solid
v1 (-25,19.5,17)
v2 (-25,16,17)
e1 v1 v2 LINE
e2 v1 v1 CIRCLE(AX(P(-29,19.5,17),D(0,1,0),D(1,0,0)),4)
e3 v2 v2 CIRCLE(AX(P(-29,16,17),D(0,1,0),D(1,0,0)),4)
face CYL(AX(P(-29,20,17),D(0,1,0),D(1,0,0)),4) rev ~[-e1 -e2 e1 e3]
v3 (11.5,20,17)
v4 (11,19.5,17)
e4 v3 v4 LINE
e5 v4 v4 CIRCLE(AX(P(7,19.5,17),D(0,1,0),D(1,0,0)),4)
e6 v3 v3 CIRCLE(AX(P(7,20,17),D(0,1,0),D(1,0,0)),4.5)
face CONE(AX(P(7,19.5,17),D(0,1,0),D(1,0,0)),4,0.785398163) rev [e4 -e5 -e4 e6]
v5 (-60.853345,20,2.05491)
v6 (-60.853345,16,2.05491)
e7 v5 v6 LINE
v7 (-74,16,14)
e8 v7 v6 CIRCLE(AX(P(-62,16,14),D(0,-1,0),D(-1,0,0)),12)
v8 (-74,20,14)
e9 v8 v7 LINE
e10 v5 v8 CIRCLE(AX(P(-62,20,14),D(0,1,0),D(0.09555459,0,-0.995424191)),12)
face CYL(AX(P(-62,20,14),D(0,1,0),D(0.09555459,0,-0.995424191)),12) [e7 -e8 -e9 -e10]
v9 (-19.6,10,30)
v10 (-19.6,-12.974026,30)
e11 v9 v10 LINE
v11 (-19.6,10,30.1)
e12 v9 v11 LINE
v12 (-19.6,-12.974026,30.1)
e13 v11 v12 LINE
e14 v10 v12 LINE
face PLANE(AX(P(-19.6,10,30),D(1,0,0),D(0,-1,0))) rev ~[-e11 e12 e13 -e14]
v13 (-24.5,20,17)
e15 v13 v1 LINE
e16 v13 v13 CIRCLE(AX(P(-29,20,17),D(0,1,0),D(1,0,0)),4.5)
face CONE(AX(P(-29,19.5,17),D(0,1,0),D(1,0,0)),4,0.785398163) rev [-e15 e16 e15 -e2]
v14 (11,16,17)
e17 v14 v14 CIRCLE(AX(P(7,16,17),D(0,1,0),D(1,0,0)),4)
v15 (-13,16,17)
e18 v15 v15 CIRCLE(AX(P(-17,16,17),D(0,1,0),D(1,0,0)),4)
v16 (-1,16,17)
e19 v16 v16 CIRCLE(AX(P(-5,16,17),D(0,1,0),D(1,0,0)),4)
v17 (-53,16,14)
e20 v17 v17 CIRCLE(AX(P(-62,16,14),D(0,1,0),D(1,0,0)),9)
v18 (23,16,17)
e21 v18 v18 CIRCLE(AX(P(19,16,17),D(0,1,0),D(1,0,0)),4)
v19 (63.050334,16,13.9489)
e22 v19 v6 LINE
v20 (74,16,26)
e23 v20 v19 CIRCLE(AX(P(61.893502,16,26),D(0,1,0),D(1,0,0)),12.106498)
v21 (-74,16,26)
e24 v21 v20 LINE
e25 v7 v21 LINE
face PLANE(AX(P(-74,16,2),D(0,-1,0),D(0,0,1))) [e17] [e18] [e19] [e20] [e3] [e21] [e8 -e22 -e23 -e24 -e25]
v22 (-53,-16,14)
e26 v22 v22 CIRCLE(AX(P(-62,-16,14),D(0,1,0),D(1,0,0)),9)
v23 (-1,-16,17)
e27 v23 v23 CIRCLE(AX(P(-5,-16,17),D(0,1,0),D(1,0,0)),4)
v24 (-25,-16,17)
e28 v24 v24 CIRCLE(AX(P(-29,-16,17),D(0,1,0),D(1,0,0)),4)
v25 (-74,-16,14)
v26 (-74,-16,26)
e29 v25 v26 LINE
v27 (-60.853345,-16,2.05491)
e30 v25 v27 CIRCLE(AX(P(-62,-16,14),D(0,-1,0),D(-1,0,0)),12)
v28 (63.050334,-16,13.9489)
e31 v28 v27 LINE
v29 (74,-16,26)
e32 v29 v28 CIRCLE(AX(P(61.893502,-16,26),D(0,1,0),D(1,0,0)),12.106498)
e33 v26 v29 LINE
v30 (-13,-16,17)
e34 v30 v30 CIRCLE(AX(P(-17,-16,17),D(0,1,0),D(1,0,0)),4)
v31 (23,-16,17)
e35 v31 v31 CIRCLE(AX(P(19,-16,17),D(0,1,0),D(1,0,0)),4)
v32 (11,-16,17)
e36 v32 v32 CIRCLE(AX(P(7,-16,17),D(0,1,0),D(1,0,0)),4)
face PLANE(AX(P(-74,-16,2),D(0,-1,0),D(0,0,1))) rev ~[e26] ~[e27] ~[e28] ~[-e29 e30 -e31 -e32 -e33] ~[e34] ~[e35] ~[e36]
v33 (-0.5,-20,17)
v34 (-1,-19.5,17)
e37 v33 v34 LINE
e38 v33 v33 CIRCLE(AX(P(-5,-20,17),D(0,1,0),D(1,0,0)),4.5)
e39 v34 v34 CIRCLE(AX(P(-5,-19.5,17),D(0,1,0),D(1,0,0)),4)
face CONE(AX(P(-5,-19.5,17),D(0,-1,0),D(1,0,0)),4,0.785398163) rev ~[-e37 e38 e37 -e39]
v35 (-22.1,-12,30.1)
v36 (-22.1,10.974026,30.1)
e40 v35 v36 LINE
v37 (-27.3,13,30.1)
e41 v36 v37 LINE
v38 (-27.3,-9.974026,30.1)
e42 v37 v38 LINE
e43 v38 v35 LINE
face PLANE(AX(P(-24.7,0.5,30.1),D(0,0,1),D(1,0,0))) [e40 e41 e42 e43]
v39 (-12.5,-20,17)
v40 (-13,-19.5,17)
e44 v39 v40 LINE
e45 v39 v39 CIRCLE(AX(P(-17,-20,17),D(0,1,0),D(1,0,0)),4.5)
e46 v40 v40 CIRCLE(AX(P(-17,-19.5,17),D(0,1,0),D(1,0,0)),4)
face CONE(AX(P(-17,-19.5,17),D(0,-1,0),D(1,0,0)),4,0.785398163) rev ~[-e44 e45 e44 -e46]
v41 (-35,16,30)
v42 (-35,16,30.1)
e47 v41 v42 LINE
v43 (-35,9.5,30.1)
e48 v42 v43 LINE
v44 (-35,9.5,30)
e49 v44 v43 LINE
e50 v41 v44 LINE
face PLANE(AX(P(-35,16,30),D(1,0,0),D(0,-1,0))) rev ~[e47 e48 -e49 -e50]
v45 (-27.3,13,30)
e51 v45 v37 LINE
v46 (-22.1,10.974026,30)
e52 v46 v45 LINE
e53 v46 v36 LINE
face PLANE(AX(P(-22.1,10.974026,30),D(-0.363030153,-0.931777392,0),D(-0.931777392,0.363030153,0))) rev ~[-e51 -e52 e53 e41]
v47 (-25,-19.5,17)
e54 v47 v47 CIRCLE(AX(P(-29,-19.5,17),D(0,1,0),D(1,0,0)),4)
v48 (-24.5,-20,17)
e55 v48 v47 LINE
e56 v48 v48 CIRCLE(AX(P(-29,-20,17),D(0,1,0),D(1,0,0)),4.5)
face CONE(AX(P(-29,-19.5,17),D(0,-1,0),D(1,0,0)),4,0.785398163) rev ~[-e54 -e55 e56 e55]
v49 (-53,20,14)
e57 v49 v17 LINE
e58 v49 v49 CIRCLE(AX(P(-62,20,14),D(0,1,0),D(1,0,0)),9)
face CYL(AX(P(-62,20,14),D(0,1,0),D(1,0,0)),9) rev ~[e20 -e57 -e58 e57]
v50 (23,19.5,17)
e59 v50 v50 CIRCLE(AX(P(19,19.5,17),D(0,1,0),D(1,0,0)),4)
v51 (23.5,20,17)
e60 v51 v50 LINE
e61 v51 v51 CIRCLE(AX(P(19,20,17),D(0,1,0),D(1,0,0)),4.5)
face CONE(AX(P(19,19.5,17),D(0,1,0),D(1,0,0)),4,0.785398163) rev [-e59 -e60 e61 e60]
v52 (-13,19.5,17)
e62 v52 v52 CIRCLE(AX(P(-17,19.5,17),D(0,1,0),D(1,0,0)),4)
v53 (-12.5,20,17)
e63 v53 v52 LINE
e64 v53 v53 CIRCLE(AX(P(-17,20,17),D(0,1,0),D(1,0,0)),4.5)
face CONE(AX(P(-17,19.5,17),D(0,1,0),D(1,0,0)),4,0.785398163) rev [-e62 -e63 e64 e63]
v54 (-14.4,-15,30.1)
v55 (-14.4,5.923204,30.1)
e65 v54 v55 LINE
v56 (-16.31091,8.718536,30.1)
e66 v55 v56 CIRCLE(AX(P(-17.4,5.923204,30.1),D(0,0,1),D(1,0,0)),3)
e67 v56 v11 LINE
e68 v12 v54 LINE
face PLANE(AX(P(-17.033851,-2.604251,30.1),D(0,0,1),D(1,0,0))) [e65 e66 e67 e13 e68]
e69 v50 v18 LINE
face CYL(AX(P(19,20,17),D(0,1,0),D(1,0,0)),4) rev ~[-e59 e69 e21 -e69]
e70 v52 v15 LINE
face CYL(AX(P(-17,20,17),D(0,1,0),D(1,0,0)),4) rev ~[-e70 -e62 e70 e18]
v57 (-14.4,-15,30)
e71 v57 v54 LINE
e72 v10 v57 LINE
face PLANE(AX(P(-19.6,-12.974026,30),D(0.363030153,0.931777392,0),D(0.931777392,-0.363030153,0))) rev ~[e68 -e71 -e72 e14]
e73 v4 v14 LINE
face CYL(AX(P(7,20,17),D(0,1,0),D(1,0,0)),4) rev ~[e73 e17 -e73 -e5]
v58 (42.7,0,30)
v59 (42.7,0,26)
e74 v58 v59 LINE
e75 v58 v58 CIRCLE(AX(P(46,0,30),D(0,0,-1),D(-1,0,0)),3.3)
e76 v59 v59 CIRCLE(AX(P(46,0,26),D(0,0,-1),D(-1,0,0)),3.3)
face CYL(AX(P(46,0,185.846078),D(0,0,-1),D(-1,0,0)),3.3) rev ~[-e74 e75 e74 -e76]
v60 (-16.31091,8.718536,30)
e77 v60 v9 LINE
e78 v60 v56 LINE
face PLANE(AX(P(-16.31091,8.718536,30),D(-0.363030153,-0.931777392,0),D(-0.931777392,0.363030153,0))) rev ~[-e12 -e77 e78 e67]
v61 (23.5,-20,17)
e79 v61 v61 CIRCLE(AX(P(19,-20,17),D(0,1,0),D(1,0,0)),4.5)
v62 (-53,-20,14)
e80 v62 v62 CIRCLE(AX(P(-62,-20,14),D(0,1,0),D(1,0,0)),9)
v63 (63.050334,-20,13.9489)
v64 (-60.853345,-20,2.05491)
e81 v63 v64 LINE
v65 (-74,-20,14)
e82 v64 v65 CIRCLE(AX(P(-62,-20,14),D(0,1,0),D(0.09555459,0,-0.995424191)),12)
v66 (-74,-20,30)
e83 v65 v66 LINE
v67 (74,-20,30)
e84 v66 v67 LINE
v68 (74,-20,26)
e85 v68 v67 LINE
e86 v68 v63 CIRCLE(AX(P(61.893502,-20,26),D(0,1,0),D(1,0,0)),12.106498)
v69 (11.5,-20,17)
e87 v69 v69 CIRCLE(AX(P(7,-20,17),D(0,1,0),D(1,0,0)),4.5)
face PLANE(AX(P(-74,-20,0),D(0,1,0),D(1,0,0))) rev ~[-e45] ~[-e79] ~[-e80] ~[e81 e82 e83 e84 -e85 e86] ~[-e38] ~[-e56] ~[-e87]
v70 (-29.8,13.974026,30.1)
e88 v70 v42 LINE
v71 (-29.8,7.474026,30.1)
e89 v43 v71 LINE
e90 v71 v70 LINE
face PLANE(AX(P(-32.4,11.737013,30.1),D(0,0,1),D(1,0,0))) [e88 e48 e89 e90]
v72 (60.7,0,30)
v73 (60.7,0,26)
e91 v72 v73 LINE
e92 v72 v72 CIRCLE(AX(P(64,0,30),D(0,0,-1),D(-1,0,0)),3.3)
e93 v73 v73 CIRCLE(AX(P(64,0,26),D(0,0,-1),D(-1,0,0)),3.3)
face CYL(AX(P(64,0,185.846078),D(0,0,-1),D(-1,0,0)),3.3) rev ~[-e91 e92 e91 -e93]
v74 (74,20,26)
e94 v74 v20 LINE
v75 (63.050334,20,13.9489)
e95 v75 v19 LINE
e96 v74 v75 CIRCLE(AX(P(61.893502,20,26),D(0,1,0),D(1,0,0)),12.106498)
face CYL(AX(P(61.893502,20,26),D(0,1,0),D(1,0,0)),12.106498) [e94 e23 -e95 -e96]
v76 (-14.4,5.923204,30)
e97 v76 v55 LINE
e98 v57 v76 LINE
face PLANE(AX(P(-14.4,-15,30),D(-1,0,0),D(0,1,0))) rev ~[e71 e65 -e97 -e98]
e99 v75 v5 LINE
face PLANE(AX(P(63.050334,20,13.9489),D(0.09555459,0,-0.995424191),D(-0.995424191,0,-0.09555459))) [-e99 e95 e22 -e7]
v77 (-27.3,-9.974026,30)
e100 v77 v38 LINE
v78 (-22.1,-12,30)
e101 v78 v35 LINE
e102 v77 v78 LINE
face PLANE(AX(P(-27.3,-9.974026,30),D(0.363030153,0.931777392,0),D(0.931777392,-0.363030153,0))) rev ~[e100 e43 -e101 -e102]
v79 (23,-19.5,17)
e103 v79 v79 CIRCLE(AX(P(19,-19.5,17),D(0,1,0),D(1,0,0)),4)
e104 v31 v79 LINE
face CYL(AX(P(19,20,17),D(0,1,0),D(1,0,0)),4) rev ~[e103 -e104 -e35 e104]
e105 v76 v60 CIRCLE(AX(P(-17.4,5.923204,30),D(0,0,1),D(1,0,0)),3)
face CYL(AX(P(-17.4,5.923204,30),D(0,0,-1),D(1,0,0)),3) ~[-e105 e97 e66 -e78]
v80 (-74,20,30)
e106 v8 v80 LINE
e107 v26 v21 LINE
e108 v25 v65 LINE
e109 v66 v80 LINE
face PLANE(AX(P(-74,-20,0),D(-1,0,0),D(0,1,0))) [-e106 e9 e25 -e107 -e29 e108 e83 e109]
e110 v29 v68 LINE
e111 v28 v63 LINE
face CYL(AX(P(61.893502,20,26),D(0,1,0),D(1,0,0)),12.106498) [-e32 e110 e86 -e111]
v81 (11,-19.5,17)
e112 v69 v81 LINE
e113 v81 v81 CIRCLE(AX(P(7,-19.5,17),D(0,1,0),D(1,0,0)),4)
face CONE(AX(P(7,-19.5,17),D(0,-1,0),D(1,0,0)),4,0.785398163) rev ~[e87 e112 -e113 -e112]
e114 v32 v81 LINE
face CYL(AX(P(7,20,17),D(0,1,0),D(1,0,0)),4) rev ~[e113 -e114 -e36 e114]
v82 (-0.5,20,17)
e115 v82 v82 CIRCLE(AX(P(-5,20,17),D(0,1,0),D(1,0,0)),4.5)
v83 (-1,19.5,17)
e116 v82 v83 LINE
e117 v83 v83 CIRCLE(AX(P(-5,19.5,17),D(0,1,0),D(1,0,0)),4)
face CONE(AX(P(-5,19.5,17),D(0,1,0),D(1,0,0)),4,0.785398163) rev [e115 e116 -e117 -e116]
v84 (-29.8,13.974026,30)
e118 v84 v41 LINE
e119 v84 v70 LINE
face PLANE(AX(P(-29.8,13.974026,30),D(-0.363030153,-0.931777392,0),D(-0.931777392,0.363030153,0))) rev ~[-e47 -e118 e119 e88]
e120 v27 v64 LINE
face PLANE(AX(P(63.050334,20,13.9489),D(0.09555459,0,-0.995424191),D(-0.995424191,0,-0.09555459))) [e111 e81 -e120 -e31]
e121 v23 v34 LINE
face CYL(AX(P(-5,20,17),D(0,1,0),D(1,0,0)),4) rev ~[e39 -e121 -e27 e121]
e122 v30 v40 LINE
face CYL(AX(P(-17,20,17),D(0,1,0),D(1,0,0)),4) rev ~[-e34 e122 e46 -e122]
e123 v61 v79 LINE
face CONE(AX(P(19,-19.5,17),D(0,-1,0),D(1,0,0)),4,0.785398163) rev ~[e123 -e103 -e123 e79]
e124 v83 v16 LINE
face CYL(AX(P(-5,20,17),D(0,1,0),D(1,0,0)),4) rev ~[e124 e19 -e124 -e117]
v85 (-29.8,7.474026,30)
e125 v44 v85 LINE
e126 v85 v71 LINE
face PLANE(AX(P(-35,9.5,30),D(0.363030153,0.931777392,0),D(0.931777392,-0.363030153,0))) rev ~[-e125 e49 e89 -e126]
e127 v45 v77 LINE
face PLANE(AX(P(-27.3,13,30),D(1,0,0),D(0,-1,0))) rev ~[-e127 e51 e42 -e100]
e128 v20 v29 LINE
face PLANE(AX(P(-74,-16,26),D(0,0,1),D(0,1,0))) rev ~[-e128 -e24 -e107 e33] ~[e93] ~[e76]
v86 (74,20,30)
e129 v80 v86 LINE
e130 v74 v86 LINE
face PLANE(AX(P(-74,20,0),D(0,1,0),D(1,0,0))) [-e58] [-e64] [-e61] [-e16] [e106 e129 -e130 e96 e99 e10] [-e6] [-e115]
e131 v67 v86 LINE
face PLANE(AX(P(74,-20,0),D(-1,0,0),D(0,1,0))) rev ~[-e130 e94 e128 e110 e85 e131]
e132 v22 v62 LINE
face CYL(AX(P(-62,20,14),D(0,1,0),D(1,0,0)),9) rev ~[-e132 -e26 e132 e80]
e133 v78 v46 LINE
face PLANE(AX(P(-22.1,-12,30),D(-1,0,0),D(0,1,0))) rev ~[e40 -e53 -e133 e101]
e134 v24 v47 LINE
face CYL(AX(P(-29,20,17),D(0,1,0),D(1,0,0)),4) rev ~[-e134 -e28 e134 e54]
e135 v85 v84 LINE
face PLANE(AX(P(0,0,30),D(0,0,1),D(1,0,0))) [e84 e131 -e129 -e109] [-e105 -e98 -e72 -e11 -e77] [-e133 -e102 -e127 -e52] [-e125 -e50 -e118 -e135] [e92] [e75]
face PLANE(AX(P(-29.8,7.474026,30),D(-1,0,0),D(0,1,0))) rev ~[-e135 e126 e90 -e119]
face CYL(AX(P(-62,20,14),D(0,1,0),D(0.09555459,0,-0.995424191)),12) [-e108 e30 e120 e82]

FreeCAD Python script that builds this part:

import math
import FreeCAD as App
import Part
import Sketcher

V = App.Vector
Q = App.Units.Quantity


def edges_at(feature, points):
    """Names of the edges that pass closest to the given points."""
    edges = feature.Shape.Edges
    near = lambda p: min(range(len(edges)), key=lambda i: edges[i].distToShape(Part.Vertex(*p))[0])
    return sorted({f"Edge{near(p) + 1}" for p in points})


def add_polygon(sketch, points):
    """Adds a closed chain of lines whose ends are joined by coincident constraints."""
    first, n = sketch.GeometryCount, len(points)
    for a, b in zip(points, points[1:] + points[:1]):
        sketch.addGeometry(Part.LineSegment(App.Vector(*a, 0), App.Vector(*b, 0)), False)
    for i in range(n):
        sketch.addConstraint(Sketcher.Constraint("Coincident", first + i, 2, first + (i + 1) % n, 1))

doc = App.newDocument("Part")
body = doc.addObject("PartDesign::Body", "Body")

sketch1 = body.newObject("Sketcher::SketchObject", "Sketch")
sketch1.AttachmentSupport = (doc.getObject("XY_Plane"), [""])
sketch1.MapMode = "FlatFace"
add_polygon(sketch1, [(-74, 20), (-74, -20), (74, -20), (74, 20)])
sketch1.addConstraint(Sketcher.Constraint("Vertical", 0))
sketch1.addConstraint(Sketcher.Constraint("Horizontal", 1))
sketch1.addConstraint(Sketcher.Constraint("Vertical", 2))
sketch1.addConstraint(Sketcher.Constraint("Horizontal", 3))
sketch1.addConstraint(Sketcher.Constraint("Symmetric", 0, 2, 2, 2, -1, 1))
sketch1.addConstraint(Sketcher.Constraint("DistanceX", 1, 1, 1, 2, Q("148 mm")))
sketch1.addConstraint(Sketcher.Constraint("DistanceY", 0, 2, 0, 1, Q("40 mm")))
pad1 = body.newObject("PartDesign::Pad", "Pad")
pad1.Profile = sketch1
pad1.Length = 30

sketch2 = body.newObject("Sketcher::SketchObject", "Sketch001")
sketch2.AttachmentSupport = (doc.getObject("XZ_Plane"), [""])
sketch2.MapMode = "FlatFace"
sketch2.AttachmentOffset = App.Placement(V(0, 0, -20), App.Rotation())
add_polygon(sketch2, [(-90.6, -16.6), (-90.6, 46.6), (90.6, 46.6), (90.6, -16.6)])
sketch2.addGeometry(Part.LineSegment(V(-74, 30, 0), V(-74, 14, 0)), False)
sketch2.addGeometry(Part.ArcOfCircle(Part.Circle(V(-62, 14, 0), V(0, 0, 1), 12), math.radians(180), math.radians(275)), False)
sketch2.addGeometry(Part.LineSegment(V(-60.9, 2.1, 0), V(63.1, 13.9, 0)), False)
sketch2.addGeometry(Part.ArcOfCircle(Part.Circle(V(61.9, 26, 0), V(0, 0, 1), 12.1), math.radians(-85), math.radians(0)), False)
sketch2.addGeometry(Part.LineSegment(V(74, 26, 0), V(74, 30, 0)), False)
sketch2.addGeometry(Part.LineSegment(V(74, 30, 0), V(-74, 30, 0)), False)
sketch2.addConstraint(Sketcher.Constraint("Tangent", 4, 2, 5, 1))
sketch2.addConstraint(Sketcher.Constraint("Tangent", 5, 2, 6, 1))
sketch2.addConstraint(Sketcher.Constraint("Tangent", 6, 2, 7, 1))
sketch2.addConstraint(Sketcher.Constraint("Tangent", 7, 2, 8, 1))
sketch2.addConstraint(Sketcher.Constraint("Coincident", 8, 2, 9, 1))
sketch2.addConstraint(Sketcher.Constraint("Coincident", 9, 2, 4, 1))
sketch2.addConstraint(Sketcher.Constraint("Vertical", 0))
sketch2.addConstraint(Sketcher.Constraint("Horizontal", 1))
sketch2.addConstraint(Sketcher.Constraint("Vertical", 2))
sketch2.addConstraint(Sketcher.Constraint("Horizontal", 3))
sketch2.addConstraint(Sketcher.Constraint("Vertical", 4))
sketch2.addConstraint(Sketcher.Constraint("Vertical", 8))
sketch2.addConstraint(Sketcher.Constraint("Horizontal", 9))
sketch2.addConstraint(Sketcher.Constraint("Radius", 5, Q("12 mm")))
sketch2.addConstraint(Sketcher.Constraint("DistanceX", 9, 2, 9, 1, Q("148 mm")))
sketch2.addConstraint(Sketcher.Constraint("DistanceY", 4, 2, 4, 1, Q("16 mm")))
sketch2.addConstraint(Sketcher.Constraint("DistanceY", 8, 1, 8, 2, Q("4 mm")))
sketch2.addConstraint(Sketcher.Constraint("DistanceX", 5, 3, -1, 1, Q("62 mm")))
sketch2.addConstraint(Sketcher.Constraint("DistanceY", -1, 1, 5, 3, Q("14 mm")))
sketch2.addConstraint(Sketcher.Constraint("DistanceX", 1, 1, 1, 2, Q("181.244 mm")))
sketch2.addConstraint(Sketcher.Constraint("DistanceY", 0, 1, 0, 2, Q("63.244 mm")))
sketch2.addConstraint(Sketcher.Constraint("DistanceX", 0, 2, -1, 1, Q("90.622 mm")))
sketch2.addConstraint(Sketcher.Constraint("DistanceY", -1, 1, 0, 2, Q("46.622 mm")))
sketch2.addConstraint(Sketcher.Constraint("Radius", 7, Q("12.106498 mm")))
pocket1 = body.newObject("PartDesign::Pocket", "Pocket")
pocket1.Profile = sketch2
pocket1.Type = "ThroughAll"
pocket1.Reversed = True

sketch3 = body.newObject("Sketcher::SketchObject", "Sketch002")
sketch3.AttachmentSupport = (doc.getObject("YZ_Plane"), [""])
sketch3.MapMode = "FlatFace"
sketch3.AttachmentOffset = App.Placement(V(0, 0, -74), App.Rotation())
add_polygon(sketch3, [(16, 2), (-16, 2), (-16, 26), (16, 26)])
sketch3.addConstraint(Sketcher.Constraint("Horizontal", 0))
sketch3.addConstraint(Sketcher.Constraint("Vertical", 1))
sketch3.addConstraint(Sketcher.Constraint("Horizontal", 2))
sketch3.addConstraint(Sketcher.Constraint("Vertical", 3))
sketch3.addConstraint(Sketcher.Constraint("DistanceX", 0, 2, 0, 1, Q("32 mm")))
sketch3.addConstraint(Sketcher.Constraint("DistanceY", 1, 1, 1, 2, Q("24 mm")))
sketch3.addConstraint(Sketcher.Constraint("DistanceX", 0, 2, -1, 1, Q("16 mm")))
sketch3.addConstraint(Sketcher.Constraint("DistanceY", -1, 1, 0, 2, Q("2 mm")))
pocket2 = body.newObject("PartDesign::Pocket", "Pocket001")
pocket2.Profile = sketch3
pocket2.Type = "ThroughAll"
pocket2.Reversed = True

sketch4 = body.newObject("Sketcher::SketchObject", "Sketch003")
sketch4.AttachmentSupport = (doc.getObject("XZ_Plane"), [""])
sketch4.MapMode = "FlatFace"
sketch4.AttachmentOffset = App.Placement(V(0, 0, -20), App.Rotation())
sketch4.addGeometry(Part.Circle(V(-62, 14, 0), V(0, 0, 1), 9), False)
sketch4.addGeometry(Part.Circle(V(-29, 17, 0), V(0, 0, 1), 4), False)
sketch4.addGeometry(Part.Circle(V(-17, 17, 0), V(0, 0, 1), 4), False)
sketch4.addGeometry(Part.Circle(V(-5, 17, 0), V(0, 0, 1), 4), False)
sketch4.addGeometry(Part.Circle(V(7, 17, 0), V(0, 0, 1), 4), False)
sketch4.addGeometry(Part.Circle(V(19, 17, 0), V(0, 0, 1), 4), False)
sketch4.addConstraint(Sketcher.Constraint("Equal", 1, 2))
sketch4.addConstraint(Sketcher.Constraint("Equal", 2, 3))
sketch4.addConstraint(Sketcher.Constraint("Equal", 3, 4))
sketch4.addConstraint(Sketcher.Constraint("Equal", 4, 5))
sketch4.addConstraint(Sketcher.Constraint("Horizontal", 1, 3, 2, 3))
sketch4.addConstraint(Sketcher.Constraint("Horizontal", 2, 3, 3, 3))
sketch4.addConstraint(Sketcher.Constraint("Horizontal", 3, 3, 4, 3))
sketch4.addConstraint(Sketcher.Constraint("Horizontal", 4, 3, 5, 3))
sketch4.addConstraint(Sketcher.Constraint("Diameter", 0, Q("18 mm")))
sketch4.addConstraint(Sketcher.Constraint("Diameter", 1, Q("8 mm")))
sketch4.addConstraint(Sketcher.Constraint("DistanceX", 0, 3, -1, 1, Q("62 mm")))
sketch4.addConstraint(Sketcher.Constraint("DistanceY", -1, 1, 0, 3, Q("14 mm")))
sketch4.addConstraint(Sketcher.Constraint("DistanceX", 1, 3, -1, 1, Q("29 mm")))
sketch4.addConstraint(Sketcher.Constraint("DistanceY", -1, 1, 1, 3, Q("17 mm")))
sketch4.addConstraint(Sketcher.Constraint("DistanceX", 2, 3, -1, 1, Q("17 mm")))
sketch4.addConstraint(Sketcher.Constraint("DistanceX", 3, 3, -1, 1, Q("5 mm")))
sketch4.addConstraint(Sketcher.Constraint("DistanceX", -1, 1, 4, 3, Q("7 mm")))
sketch4.addConstraint(Sketcher.Constraint("DistanceX", -1, 1, 5, 3, Q("19 mm")))
pocket3 = body.newObject("PartDesign::Pocket", "Pocket002")
pocket3.Profile = sketch4
pocket3.Type = "ThroughAll"
pocket3.Reversed = True
doc.recompute()

chamfer = body.newObject("PartDesign::Chamfer", "Chamfer")
chamfer.Base = (pocket3, edges_at(pocket3, [
    (3, 20, 17),
    (15, -20, 17),
    (15, 20, 17),
    (-33, -20, 17),
    (-33, 20, 17),
    (-21, -20, 17),
    (-21, 20, 17),
    (-9, -20, 17),
    (-9, 20, 17),
    (3, -20, 17),
]))
chamfer.Size = 0.5

sketch5 = body.newObject("Sketcher::SketchObject", "Sketch004")
sketch5.AttachmentSupport = (doc.getObject("XY_Plane"), [""])
sketch5.MapMode = "FlatFace"
sketch5.AttachmentOffset = App.Placement(V(0, 0, 30), App.Rotation())
sketch5.addGeometry(Part.Circle(V(46, 0, 0), V(0, 0, 1), 3.3), False)
sketch5.addGeometry(Part.Circle(V(64, 0, 0), V(0, 0, 1), 3.3), False)
sketch5.addConstraint(Sketcher.Constraint("Equal", 0, 1))
sketch5.addConstraint(Sketcher.Constraint("PointOnObject", 0, 3, -1))
sketch5.addConstraint(Sketcher.Constraint("PointOnObject", 1, 3, -1))
sketch5.addConstraint(Sketcher.Constraint("Diameter", 0, Q("6.6 mm")))
sketch5.addConstraint(Sketcher.Constraint("DistanceX", -1, 1, 0, 3, Q("46 mm")))
sketch5.addConstraint(Sketcher.Constraint("DistanceX", -1, 1, 1, 3, Q("64 mm")))
doc.recompute()
hole = body.newObject("PartDesign::Hole", "Hole")
hole.Profile = sketch5
hole.ThreadType = "None"
hole.Diameter = 6.6
hole.DepthType = "ThroughAll"

sketch6 = body.newObject("Sketcher::SketchObject", "Sketch005")
sketch6.AttachmentSupport = (doc.getObject("XY_Plane"), [""])
sketch6.MapMode = "FlatFace"
sketch6.AttachmentOffset = App.Placement(V(0, 0, 30), App.Rotation())
add_polygon(sketch6, [(-35, 16), (-35, 9.5), (-29.8, 7.5), (-29.8, 14)])
add_polygon(sketch6, [(-27.3, 13), (-27.3, -10), (-22.1, -12), (-22.1, 11)])
sketch6.addGeometry(Part.LineSegment(V(-19.6, 10, 0), V(-19.6, -13, 0)), False)
sketch6.addGeometry(Part.LineSegment(V(-19.6, -13, 0), V(-14.4, -15, 0)), False)
sketch6.addGeometry(Part.LineSegment(V(-14.4, -15, 0), V(-14.4, 5.9, 0)), False)
sketch6.addGeometry(Part.ArcOfCircle(Part.Circle(V(-17.4, 5.9, 0), V(0, 0, 1), 3), math.radians(0), math.radians(69)), False)
sketch6.addGeometry(Part.LineSegment(V(-16.3, 8.7, 0), V(-19.6, 10, 0)), False)
sketch6.addConstraint(Sketcher.Constraint("Coincident", 8, 2, 9, 1))
sketch6.addConstraint(Sketcher.Constraint("Coincident", 9, 2, 10, 1))
sketch6.addConstraint(Sketcher.Constraint("Tangent", 10, 2, 11, 1))
sketch6.addConstraint(Sketcher.Constraint("Tangent", 11, 2, 12, 1))
sketch6.addConstraint(Sketcher.Constraint("Coincident", 12, 2, 8, 1))
sketch6.addConstraint(Sketcher.Constraint("Vertical", 0))
sketch6.addConstraint(Sketcher.Constraint("Vertical", 2))
sketch6.addConstraint(Sketcher.Constraint("Vertical", 4))
sketch6.addConstraint(Sketcher.Constraint("Vertical", 6))
sketch6.addConstraint(Sketcher.Constraint("Vertical", 8))
sketch6.addConstraint(Sketcher.Constraint("Vertical", 10))
sketch6.addConstraint(Sketcher.Constraint("Parallel", 1, 3))
sketch6.addConstraint(Sketcher.Constraint("Parallel", 3, 5))
sketch6.addConstraint(Sketcher.Constraint("Parallel", 5, 7))
sketch6.addConstraint(Sketcher.Constraint("Parallel", 7, 9))
sketch6.addConstraint(Sketcher.Constraint("Parallel", 9, 12))
sketch6.addConstraint(Sketcher.Constraint("Equal", 6, 8))
sketch6.addConstraint(Sketcher.Constraint("Equal", 3, 5))
sketch6.addConstraint(Sketcher.Constraint("Equal", 7, 9))
sketch6.addConstraint(Sketcher.Constraint("Radius", 11, Q("3 mm")))
sketch6.addConstraint(Sketcher.Constraint("DistanceY", 0, 2, 0, 1, Q("6.5 mm")))
sketch6.addConstraint(Sketcher.Constraint("DistanceX", 0, 2, -1, 1, Q("35 mm")))
sketch6.addConstraint(Sketcher.Constraint("DistanceY", -1, 1, 3, 2, Q("16 mm")))
sketch6.addConstraint(Sketcher.Constraint("DistanceY", 5, 2, -1, 1, Q("12 mm")))
sketch6.addConstraint(Sketcher.Constraint("DistanceY", -1, 1, 7, 2, Q("13 mm")))
sketch6.addConstraint(Sketcher.Constraint("DistanceY", 9, 2, -1, 1, Q("15 mm")))
sketch6.addConstraint(Sketcher.Constraint("DistanceX", 11, 3, -1, 1, Q("17.4 mm")))
sketch6.addConstraint(Sketcher.Constraint("DistanceX", 1, 2, -1, 1, Q("29.8 mm")))
sketch6.addConstraint(Sketcher.Constraint("DistanceX", 4, 2, -1, 1, Q("27.3 mm")))
sketch6.addConstraint(Sketcher.Constraint("Distance", 12, Q("3.52991 mm")))
pad2 = body.newObject("PartDesign::Pad", "Pad001")
pad2.Profile = sketch6
pad2.Length = 0.1

doc.recompute()
